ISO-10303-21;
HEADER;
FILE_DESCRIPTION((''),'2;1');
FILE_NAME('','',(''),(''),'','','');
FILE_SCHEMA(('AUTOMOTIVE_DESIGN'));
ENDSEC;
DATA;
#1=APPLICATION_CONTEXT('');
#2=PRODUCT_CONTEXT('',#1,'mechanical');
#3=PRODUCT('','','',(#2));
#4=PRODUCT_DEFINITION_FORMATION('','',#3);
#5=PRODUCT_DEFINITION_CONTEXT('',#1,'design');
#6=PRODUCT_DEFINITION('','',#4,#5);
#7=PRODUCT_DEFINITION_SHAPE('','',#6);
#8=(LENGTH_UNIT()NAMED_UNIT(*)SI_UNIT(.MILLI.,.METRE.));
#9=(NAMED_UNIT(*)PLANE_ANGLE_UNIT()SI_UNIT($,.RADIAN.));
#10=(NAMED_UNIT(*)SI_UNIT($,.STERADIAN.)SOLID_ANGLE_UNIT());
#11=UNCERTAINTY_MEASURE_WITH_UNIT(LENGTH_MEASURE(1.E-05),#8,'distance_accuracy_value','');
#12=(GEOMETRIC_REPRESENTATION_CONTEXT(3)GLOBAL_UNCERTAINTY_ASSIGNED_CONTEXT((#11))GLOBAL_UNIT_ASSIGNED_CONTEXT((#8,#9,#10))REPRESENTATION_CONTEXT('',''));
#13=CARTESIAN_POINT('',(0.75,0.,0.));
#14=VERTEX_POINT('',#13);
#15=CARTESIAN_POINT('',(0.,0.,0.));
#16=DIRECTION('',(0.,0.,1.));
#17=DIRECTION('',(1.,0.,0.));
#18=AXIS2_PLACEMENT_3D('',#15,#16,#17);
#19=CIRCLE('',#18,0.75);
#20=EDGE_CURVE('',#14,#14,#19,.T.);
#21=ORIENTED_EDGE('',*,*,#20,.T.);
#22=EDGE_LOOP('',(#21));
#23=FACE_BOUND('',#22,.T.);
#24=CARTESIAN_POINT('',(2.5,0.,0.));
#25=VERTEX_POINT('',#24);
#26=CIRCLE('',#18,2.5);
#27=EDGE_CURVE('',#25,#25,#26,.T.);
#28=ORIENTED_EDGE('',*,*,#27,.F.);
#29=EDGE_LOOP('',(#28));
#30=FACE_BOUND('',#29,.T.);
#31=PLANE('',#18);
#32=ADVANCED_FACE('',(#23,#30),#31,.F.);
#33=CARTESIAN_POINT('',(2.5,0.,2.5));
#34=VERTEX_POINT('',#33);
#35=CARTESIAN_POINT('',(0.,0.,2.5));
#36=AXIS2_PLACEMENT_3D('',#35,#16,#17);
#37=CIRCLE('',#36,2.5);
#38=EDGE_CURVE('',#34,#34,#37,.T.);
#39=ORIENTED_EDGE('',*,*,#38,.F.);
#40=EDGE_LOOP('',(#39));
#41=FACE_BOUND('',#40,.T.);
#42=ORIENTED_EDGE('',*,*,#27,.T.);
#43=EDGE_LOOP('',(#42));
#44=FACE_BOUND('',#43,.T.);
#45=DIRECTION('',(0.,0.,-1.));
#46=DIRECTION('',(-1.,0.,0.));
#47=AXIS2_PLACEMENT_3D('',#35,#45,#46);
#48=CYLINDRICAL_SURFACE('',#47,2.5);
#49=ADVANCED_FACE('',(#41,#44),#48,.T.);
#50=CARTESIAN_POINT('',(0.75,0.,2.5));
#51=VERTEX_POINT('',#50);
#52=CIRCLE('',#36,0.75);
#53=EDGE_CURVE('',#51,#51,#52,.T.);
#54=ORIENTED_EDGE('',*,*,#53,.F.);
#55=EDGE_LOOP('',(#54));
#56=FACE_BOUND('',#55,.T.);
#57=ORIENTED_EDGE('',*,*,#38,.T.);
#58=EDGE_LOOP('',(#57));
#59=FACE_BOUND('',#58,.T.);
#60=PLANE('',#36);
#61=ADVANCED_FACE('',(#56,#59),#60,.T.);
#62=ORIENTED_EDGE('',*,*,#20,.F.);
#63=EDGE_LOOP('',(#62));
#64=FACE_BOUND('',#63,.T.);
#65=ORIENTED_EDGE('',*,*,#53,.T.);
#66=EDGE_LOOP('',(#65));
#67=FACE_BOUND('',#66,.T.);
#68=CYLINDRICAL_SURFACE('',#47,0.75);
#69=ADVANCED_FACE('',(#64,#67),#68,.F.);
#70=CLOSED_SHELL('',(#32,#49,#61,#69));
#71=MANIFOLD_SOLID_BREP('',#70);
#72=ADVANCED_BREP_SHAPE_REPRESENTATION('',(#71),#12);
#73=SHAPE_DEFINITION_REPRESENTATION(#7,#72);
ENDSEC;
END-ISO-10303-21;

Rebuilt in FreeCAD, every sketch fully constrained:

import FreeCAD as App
import Part
import Sketcher

V = App.Vector

doc = App.newDocument("Part")
body = doc.addObject("PartDesign::Body", "Body")

# Sketch on XY plane
sketch1 = doc.addObject("Sketcher::SketchObject", "Sketch")
body.addObject(sketch1)
sketch1.AttachmentSupport = (doc.XY_Plane, [""])
sketch1.MapMode = "FlatFace"
sketch1.addGeometry([
    Part.Circle(V(0, 0, 0), V(0, 0, 1), 2.5),
    Part.Circle(V(0, 0, 0), V(0, 0, 1), 0.75),
], False)
sketch1.addConstraint([
    Sketcher.Constraint("Coincident", 0, 3, -1, 1),
    Sketcher.Constraint("Coincident", 1, 3, -1, 1),
    Sketcher.Constraint("Diameter", 0, 5.0),
    Sketcher.Constraint("Diameter", 1, 1.5),
])
pad1 = doc.addObject("PartDesign::Pad", "Pad")
body.addObject(pad1)
pad1.Profile = sketch1
pad1.Length = 2.5

doc.recompute()
